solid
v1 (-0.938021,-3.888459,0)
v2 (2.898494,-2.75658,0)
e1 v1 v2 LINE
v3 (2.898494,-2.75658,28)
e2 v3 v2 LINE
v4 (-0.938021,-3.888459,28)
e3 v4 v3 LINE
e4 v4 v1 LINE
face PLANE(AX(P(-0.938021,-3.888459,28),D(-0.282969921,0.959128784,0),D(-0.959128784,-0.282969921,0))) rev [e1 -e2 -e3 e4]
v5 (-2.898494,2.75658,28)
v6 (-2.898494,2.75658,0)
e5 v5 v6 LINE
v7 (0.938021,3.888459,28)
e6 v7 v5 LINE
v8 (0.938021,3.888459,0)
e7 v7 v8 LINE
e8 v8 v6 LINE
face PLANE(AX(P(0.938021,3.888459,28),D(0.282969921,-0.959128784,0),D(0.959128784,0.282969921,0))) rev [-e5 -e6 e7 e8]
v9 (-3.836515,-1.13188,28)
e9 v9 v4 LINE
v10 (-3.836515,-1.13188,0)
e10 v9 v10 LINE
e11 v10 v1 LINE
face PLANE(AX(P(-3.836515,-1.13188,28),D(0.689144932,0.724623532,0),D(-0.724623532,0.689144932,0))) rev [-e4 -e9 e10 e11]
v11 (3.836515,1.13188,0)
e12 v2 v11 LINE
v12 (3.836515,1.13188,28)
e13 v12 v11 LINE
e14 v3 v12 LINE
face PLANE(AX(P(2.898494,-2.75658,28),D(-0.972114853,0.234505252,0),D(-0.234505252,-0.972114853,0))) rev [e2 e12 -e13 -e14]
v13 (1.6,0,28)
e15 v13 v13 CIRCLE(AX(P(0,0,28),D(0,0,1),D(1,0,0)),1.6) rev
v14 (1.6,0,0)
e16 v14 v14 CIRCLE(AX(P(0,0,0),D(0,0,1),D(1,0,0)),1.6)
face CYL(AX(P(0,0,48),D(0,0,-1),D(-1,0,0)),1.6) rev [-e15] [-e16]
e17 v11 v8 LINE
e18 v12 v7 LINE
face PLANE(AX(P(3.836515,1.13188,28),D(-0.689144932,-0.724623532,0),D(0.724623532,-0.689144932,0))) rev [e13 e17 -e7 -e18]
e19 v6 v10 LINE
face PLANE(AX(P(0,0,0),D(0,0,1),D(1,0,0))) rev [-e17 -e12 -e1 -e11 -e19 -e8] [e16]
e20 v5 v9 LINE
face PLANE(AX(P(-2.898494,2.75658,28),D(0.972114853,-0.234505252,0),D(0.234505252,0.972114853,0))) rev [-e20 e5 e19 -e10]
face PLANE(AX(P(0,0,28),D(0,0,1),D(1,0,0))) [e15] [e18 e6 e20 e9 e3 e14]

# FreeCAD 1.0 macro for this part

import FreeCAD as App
import Part
import Sketcher
from FreeCAD import Vector

doc = App.newDocument("Part")
params = doc.addObject("Spreadsheet::Sheet", "Params")
for row, (alias, value) in enumerate([
    ("sketch1_length", "4 mm"),
    ("pad1_length", "28 mm"),
    ("sketch2_diameter", "3.2 mm"),
    ("pocket1_length", "48 mm"),
], start=1):
    params.set(f"A{row}", alias)
    params.set(f"B{row}", "=" + value)
    params.setAlias(f"B{row}", alias)

body = doc.addObject("PartDesign::Body", "Body")

# Sketch on XY plane
sketch1 = doc.addObject("Sketcher::SketchObject", "Sketch")
body.addObject(sketch1)
sketch1.AttachmentSupport = (doc.XY_Plane, [""])
sketch1.MapMode = "FlatFace"
sketch1.addGeometry([
    Part.LineSegment(Vector(2.9, -2.8, 0), Vector(3.8, 1.1, 0)),  # 0
    Part.LineSegment(Vector(3.8, 1.1, 0), Vector(0.9, 3.9, 0)),  # 1
    Part.LineSegment(Vector(0.9, 3.9, 0), Vector(-2.9, 2.8, 0)),  # 2
    Part.LineSegment(Vector(-2.9, 2.8, 0), Vector(-3.8, -1.1, 0)),  # 3
    Part.LineSegment(Vector(-3.8, -1.1, 0), Vector(-0.9, -3.9, 0)),  # 4
    Part.LineSegment(Vector(-0.9, -3.9, 0), Vector(2.9, -2.8, 0)),  # 5
], False)
sketch1.addConstraint([
    Sketcher.Constraint("Coincident", 0, 2, 1, 1),
    Sketcher.Constraint("Coincident", 1, 2, 2, 1),
    Sketcher.Constraint("Coincident", 2, 2, 3, 1),
    Sketcher.Constraint("Coincident", 3, 2, 4, 1),
    Sketcher.Constraint("Coincident", 4, 2, 5, 1),
    Sketcher.Constraint("Coincident", 5, 2, 0, 1),
    Sketcher.Constraint("Symmetric", 0, 2, 3, 2, -1, 1),
    Sketcher.Constraint("Symmetric", 1, 2, 4, 2, -1, 1),
    Sketcher.Constraint("Symmetric", 2, 2, 5, 2, -1, 1),
    Sketcher.Constraint("Equal", 0, 1),
    Sketcher.Constraint("Equal", 1, 2),
    Sketcher.Constraint("Distance", 0, 4.0),
    Sketcher.Constraint("DistanceY", 0, 2, 2, 2, 1.6247),
    Sketcher.Constraint("DistanceY", -1, 1, 0, 2, 1.13188),
    Sketcher.Constraint("DistanceX", -1, 1, 1, 2, 0.938021),
])
sketch1.setExpression("Constraints[11]", "Params.sketch1_length")
pad1 = doc.addObject("PartDesign::Pad", "Pad")
body.addObject(pad1)
pad1.Profile = sketch1
pad1.setExpression("Length", "Params.pad1_length")

# Sketch on XY plane
sketch2 = doc.addObject("Sketcher::SketchObject", "Sketch001")
body.addObject(sketch2)
sketch2.AttachmentSupport = (doc.XY_Plane, [""])
sketch2.MapMode = "FlatFace"
sketch2.addGeometry(Part.Circle(Vector(0, 0, 0), Vector(0, 0, 1), 1.6), False)
sketch2.addConstraint([
    Sketcher.Constraint("Coincident", 0, 3, -1, 1),
    Sketcher.Constraint("Diameter", 0, 3.2),
])
sketch2.setExpression("Constraints[1]", "Params.sketch2_diameter")
pocket1 = doc.addObject("PartDesign::Pocket", "Pocket")
body.addObject(pocket1)
pocket1.Profile = sketch2
pocket1.setExpression("Length", "Params.pocket1_length")
pocket1.Reversed = True

doc.recompute()
